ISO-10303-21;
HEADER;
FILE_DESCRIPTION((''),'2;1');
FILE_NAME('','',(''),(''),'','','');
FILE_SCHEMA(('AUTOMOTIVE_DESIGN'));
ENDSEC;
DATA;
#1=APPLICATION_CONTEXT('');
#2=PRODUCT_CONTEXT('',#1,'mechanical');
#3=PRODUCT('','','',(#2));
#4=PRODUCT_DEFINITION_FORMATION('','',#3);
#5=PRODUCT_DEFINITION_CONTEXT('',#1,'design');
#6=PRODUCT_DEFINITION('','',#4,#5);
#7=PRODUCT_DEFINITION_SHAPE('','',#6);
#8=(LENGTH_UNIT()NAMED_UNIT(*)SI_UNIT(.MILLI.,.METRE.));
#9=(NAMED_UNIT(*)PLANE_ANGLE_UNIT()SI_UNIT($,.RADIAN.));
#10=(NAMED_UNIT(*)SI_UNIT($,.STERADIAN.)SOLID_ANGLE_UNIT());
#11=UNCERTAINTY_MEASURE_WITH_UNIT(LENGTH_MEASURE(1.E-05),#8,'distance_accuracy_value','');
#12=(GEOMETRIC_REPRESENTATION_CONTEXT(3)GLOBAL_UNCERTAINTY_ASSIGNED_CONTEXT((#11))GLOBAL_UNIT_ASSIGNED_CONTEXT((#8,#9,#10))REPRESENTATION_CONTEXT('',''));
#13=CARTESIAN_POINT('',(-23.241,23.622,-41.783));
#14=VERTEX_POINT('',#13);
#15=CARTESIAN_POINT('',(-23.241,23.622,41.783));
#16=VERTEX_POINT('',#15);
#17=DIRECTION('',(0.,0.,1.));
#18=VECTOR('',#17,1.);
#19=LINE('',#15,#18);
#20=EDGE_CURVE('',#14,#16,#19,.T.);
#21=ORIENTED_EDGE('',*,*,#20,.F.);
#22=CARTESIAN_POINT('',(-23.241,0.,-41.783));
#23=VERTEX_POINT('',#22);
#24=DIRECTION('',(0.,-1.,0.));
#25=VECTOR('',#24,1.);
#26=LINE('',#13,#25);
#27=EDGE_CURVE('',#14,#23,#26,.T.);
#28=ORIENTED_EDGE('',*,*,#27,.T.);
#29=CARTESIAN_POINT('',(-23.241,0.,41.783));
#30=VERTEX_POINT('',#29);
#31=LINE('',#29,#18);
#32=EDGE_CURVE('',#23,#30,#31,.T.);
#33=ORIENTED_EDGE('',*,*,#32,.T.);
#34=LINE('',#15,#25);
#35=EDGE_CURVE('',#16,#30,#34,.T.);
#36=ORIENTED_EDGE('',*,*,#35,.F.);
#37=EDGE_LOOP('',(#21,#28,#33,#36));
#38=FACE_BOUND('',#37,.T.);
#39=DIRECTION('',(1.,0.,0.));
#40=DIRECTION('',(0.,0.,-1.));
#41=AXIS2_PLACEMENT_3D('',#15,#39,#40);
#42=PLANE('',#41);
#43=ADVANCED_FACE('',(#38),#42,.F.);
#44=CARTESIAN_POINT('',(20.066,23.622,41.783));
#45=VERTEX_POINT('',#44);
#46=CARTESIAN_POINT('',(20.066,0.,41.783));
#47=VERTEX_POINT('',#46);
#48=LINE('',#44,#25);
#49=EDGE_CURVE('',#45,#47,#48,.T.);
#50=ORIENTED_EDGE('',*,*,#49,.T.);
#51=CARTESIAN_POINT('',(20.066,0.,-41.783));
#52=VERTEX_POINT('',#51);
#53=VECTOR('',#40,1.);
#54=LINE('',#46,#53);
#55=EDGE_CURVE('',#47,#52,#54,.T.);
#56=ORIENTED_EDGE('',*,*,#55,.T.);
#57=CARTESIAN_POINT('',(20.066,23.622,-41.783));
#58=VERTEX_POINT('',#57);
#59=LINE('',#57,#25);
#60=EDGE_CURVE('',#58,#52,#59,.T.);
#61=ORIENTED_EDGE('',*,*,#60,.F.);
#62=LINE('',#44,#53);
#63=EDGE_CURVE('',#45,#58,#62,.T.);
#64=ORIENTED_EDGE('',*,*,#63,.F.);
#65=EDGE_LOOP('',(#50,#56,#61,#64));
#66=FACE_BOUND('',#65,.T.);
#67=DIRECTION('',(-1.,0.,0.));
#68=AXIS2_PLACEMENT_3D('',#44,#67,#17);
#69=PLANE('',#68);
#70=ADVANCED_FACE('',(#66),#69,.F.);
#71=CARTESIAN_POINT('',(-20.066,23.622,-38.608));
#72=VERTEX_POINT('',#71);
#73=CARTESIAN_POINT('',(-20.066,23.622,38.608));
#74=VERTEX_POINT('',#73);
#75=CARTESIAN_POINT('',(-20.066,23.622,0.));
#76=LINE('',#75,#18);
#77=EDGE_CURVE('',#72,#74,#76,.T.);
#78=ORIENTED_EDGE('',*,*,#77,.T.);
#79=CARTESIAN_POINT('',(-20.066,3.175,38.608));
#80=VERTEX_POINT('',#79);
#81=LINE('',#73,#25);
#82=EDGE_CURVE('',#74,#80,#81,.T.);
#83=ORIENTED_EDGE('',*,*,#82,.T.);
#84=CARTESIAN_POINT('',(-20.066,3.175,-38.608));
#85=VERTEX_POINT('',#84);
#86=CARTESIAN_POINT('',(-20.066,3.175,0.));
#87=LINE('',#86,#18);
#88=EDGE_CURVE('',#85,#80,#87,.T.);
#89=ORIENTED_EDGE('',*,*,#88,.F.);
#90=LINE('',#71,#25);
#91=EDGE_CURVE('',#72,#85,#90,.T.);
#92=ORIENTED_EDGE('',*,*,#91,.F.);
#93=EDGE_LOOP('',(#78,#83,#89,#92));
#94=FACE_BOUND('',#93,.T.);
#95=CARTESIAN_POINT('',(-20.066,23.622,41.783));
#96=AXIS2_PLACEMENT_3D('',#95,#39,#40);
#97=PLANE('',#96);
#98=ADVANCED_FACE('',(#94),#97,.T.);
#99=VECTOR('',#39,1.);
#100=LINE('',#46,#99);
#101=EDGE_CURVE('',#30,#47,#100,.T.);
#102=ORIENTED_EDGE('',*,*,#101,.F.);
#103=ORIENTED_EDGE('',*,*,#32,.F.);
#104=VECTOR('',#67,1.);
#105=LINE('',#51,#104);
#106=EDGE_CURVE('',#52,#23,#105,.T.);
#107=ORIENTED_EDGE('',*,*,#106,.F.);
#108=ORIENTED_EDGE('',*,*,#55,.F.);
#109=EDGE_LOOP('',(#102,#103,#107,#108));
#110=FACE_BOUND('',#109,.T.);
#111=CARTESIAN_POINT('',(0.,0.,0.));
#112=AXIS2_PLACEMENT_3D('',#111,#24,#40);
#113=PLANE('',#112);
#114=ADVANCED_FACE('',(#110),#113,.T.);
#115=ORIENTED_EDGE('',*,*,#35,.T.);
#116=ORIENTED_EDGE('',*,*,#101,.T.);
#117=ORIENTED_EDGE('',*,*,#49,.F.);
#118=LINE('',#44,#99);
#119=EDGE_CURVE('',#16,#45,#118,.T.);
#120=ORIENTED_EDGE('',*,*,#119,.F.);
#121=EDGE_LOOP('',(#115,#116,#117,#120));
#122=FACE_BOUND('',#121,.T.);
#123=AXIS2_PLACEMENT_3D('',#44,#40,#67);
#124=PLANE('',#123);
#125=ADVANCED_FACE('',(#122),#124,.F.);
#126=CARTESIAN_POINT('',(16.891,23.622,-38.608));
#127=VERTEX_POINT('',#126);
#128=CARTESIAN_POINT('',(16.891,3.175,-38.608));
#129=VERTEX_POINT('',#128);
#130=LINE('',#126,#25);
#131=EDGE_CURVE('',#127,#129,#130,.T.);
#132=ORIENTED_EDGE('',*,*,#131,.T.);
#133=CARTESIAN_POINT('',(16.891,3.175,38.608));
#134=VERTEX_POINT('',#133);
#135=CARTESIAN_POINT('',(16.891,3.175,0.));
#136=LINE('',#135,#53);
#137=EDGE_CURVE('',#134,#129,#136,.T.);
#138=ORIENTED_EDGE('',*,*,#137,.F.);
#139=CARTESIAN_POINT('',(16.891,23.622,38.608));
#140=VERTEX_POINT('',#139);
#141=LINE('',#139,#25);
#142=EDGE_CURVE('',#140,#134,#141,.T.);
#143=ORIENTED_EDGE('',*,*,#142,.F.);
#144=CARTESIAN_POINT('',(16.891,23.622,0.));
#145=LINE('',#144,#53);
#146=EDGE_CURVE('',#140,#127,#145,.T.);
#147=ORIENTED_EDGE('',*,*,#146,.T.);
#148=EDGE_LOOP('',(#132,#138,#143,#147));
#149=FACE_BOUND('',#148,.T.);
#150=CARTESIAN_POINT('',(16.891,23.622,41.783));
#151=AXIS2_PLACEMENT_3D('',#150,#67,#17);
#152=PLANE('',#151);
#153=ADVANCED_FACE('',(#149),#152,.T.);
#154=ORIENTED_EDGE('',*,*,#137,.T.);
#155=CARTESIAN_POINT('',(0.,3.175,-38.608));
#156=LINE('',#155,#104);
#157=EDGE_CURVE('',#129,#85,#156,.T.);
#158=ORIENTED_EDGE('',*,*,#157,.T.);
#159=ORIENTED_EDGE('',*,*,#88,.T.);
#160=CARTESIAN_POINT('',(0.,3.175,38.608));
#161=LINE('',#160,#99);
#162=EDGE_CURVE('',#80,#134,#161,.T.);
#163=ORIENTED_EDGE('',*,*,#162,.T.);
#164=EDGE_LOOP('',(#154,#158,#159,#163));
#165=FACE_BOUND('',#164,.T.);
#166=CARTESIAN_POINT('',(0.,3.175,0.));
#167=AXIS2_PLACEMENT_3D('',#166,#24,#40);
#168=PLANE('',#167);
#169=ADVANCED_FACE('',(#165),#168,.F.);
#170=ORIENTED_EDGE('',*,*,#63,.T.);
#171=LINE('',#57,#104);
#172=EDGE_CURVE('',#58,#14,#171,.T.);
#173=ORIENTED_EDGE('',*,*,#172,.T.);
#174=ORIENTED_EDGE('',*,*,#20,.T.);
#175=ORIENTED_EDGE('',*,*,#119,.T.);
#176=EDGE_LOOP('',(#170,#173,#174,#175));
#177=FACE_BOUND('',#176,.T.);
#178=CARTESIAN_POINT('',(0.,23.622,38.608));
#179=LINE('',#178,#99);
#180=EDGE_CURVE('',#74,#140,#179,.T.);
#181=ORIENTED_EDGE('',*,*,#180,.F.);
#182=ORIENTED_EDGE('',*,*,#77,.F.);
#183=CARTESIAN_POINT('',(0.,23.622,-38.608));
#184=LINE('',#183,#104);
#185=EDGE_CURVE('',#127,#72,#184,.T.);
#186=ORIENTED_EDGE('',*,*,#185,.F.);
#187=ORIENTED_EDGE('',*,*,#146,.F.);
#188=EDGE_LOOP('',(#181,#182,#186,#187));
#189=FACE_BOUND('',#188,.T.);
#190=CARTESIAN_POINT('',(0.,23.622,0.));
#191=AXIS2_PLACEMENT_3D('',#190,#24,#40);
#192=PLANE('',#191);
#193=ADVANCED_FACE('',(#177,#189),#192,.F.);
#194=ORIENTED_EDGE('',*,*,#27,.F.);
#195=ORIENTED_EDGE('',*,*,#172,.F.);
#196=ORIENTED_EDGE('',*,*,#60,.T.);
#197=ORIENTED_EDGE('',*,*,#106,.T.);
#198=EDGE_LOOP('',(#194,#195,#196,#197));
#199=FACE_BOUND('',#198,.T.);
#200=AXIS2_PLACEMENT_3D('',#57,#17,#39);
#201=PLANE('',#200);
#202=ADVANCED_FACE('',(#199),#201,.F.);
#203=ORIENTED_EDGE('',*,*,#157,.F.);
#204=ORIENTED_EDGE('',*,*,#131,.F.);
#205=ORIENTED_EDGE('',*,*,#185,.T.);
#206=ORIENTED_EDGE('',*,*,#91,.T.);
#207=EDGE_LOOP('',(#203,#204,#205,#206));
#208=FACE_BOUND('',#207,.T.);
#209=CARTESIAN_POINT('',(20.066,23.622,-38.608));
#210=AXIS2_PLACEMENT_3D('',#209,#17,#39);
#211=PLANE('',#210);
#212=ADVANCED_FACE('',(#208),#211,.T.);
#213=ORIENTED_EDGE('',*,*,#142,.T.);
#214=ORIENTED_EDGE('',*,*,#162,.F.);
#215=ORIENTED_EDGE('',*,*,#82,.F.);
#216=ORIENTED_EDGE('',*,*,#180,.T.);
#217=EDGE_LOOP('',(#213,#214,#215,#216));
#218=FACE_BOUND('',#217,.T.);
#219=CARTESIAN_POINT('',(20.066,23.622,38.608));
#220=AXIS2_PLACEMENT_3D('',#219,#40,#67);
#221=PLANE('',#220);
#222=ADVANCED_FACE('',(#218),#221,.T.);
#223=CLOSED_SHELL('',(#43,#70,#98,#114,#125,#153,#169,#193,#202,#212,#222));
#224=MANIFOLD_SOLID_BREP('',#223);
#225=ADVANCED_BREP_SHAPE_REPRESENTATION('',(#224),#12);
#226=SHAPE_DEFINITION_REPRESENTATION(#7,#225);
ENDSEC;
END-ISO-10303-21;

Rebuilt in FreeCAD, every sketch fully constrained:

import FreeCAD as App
import Part
import Sketcher

V = App.Vector
Q = App.Units.Quantity


def faces_at(feature, points):
    """Names of the faces that lie closest to the given points."""
    faces = feature.Shape.Faces
    near = lambda p: min(range(len(faces)), key=lambda i: faces[i].distToShape(Part.Vertex(*p))[0])
    return sorted({f"Face{near(p) + 1}" for p in points})


def add_polygon(sketch, points):
    """Adds a closed chain of lines whose ends are joined by coincident constraints."""
    first, n = sketch.GeometryCount, len(points)
    for a, b in zip(points, points[1:] + points[:1]):
        sketch.addGeometry(Part.LineSegment(App.Vector(*a, 0), App.Vector(*b, 0)), False)
    for i in range(n):
        sketch.addConstraint(Sketcher.Constraint("Coincident", first + i, 2, first + (i + 1) % n, 1))

doc = App.newDocument("Part")
body = doc.addObject("PartDesign::Body", "Body")

sketch1 = doc.addObject("Sketcher::SketchObject", "Sketch")
body.addObject(sketch1)
sketch1.AttachmentSupport = (doc.XZ_Plane, [""])
sketch1.MapMode = "FlatFace"
add_polygon(sketch1, [(-23, -42), (-23, 42), (20, 42), (20, -42)])
sketch1.addConstraint([
    Sketcher.Constraint("Vertical", 0),
    Sketcher.Constraint("Horizontal", 1),
    Sketcher.Constraint("Vertical", 2),
    Sketcher.Constraint("Horizontal", 3),
    Sketcher.Constraint("DistanceY", 0, 1, 0, 2, Q("3.29 in")),
    Sketcher.Constraint("DistanceX", 1, 1, 1, 2, Q("1.705 in")),
    Sketcher.Constraint("DistanceX", -1, 1, 1, 2, Q("0.79 in")),
    Sketcher.Constraint("DistanceY", -1, 1, 0, 2, Q("1.645 in")),
])
pad1 = doc.addObject("PartDesign::Pad", "Pad")
body.addObject(pad1)
pad1.Profile = sketch1
pad1.Length = Q("0.93 in")
pad1.Reversed = True
doc.recompute()

thickness = doc.addObject("PartDesign::Thickness", "Thickness")
body.addObject(thickness)
thickness.Base = (pad1, faces_at(pad1, [(-1.587, 23.622, 0)]))
thickness.Value = Q("0.125 in")
thickness.Reversed = True
thickness.Join = "Intersection"

doc.recompute()
